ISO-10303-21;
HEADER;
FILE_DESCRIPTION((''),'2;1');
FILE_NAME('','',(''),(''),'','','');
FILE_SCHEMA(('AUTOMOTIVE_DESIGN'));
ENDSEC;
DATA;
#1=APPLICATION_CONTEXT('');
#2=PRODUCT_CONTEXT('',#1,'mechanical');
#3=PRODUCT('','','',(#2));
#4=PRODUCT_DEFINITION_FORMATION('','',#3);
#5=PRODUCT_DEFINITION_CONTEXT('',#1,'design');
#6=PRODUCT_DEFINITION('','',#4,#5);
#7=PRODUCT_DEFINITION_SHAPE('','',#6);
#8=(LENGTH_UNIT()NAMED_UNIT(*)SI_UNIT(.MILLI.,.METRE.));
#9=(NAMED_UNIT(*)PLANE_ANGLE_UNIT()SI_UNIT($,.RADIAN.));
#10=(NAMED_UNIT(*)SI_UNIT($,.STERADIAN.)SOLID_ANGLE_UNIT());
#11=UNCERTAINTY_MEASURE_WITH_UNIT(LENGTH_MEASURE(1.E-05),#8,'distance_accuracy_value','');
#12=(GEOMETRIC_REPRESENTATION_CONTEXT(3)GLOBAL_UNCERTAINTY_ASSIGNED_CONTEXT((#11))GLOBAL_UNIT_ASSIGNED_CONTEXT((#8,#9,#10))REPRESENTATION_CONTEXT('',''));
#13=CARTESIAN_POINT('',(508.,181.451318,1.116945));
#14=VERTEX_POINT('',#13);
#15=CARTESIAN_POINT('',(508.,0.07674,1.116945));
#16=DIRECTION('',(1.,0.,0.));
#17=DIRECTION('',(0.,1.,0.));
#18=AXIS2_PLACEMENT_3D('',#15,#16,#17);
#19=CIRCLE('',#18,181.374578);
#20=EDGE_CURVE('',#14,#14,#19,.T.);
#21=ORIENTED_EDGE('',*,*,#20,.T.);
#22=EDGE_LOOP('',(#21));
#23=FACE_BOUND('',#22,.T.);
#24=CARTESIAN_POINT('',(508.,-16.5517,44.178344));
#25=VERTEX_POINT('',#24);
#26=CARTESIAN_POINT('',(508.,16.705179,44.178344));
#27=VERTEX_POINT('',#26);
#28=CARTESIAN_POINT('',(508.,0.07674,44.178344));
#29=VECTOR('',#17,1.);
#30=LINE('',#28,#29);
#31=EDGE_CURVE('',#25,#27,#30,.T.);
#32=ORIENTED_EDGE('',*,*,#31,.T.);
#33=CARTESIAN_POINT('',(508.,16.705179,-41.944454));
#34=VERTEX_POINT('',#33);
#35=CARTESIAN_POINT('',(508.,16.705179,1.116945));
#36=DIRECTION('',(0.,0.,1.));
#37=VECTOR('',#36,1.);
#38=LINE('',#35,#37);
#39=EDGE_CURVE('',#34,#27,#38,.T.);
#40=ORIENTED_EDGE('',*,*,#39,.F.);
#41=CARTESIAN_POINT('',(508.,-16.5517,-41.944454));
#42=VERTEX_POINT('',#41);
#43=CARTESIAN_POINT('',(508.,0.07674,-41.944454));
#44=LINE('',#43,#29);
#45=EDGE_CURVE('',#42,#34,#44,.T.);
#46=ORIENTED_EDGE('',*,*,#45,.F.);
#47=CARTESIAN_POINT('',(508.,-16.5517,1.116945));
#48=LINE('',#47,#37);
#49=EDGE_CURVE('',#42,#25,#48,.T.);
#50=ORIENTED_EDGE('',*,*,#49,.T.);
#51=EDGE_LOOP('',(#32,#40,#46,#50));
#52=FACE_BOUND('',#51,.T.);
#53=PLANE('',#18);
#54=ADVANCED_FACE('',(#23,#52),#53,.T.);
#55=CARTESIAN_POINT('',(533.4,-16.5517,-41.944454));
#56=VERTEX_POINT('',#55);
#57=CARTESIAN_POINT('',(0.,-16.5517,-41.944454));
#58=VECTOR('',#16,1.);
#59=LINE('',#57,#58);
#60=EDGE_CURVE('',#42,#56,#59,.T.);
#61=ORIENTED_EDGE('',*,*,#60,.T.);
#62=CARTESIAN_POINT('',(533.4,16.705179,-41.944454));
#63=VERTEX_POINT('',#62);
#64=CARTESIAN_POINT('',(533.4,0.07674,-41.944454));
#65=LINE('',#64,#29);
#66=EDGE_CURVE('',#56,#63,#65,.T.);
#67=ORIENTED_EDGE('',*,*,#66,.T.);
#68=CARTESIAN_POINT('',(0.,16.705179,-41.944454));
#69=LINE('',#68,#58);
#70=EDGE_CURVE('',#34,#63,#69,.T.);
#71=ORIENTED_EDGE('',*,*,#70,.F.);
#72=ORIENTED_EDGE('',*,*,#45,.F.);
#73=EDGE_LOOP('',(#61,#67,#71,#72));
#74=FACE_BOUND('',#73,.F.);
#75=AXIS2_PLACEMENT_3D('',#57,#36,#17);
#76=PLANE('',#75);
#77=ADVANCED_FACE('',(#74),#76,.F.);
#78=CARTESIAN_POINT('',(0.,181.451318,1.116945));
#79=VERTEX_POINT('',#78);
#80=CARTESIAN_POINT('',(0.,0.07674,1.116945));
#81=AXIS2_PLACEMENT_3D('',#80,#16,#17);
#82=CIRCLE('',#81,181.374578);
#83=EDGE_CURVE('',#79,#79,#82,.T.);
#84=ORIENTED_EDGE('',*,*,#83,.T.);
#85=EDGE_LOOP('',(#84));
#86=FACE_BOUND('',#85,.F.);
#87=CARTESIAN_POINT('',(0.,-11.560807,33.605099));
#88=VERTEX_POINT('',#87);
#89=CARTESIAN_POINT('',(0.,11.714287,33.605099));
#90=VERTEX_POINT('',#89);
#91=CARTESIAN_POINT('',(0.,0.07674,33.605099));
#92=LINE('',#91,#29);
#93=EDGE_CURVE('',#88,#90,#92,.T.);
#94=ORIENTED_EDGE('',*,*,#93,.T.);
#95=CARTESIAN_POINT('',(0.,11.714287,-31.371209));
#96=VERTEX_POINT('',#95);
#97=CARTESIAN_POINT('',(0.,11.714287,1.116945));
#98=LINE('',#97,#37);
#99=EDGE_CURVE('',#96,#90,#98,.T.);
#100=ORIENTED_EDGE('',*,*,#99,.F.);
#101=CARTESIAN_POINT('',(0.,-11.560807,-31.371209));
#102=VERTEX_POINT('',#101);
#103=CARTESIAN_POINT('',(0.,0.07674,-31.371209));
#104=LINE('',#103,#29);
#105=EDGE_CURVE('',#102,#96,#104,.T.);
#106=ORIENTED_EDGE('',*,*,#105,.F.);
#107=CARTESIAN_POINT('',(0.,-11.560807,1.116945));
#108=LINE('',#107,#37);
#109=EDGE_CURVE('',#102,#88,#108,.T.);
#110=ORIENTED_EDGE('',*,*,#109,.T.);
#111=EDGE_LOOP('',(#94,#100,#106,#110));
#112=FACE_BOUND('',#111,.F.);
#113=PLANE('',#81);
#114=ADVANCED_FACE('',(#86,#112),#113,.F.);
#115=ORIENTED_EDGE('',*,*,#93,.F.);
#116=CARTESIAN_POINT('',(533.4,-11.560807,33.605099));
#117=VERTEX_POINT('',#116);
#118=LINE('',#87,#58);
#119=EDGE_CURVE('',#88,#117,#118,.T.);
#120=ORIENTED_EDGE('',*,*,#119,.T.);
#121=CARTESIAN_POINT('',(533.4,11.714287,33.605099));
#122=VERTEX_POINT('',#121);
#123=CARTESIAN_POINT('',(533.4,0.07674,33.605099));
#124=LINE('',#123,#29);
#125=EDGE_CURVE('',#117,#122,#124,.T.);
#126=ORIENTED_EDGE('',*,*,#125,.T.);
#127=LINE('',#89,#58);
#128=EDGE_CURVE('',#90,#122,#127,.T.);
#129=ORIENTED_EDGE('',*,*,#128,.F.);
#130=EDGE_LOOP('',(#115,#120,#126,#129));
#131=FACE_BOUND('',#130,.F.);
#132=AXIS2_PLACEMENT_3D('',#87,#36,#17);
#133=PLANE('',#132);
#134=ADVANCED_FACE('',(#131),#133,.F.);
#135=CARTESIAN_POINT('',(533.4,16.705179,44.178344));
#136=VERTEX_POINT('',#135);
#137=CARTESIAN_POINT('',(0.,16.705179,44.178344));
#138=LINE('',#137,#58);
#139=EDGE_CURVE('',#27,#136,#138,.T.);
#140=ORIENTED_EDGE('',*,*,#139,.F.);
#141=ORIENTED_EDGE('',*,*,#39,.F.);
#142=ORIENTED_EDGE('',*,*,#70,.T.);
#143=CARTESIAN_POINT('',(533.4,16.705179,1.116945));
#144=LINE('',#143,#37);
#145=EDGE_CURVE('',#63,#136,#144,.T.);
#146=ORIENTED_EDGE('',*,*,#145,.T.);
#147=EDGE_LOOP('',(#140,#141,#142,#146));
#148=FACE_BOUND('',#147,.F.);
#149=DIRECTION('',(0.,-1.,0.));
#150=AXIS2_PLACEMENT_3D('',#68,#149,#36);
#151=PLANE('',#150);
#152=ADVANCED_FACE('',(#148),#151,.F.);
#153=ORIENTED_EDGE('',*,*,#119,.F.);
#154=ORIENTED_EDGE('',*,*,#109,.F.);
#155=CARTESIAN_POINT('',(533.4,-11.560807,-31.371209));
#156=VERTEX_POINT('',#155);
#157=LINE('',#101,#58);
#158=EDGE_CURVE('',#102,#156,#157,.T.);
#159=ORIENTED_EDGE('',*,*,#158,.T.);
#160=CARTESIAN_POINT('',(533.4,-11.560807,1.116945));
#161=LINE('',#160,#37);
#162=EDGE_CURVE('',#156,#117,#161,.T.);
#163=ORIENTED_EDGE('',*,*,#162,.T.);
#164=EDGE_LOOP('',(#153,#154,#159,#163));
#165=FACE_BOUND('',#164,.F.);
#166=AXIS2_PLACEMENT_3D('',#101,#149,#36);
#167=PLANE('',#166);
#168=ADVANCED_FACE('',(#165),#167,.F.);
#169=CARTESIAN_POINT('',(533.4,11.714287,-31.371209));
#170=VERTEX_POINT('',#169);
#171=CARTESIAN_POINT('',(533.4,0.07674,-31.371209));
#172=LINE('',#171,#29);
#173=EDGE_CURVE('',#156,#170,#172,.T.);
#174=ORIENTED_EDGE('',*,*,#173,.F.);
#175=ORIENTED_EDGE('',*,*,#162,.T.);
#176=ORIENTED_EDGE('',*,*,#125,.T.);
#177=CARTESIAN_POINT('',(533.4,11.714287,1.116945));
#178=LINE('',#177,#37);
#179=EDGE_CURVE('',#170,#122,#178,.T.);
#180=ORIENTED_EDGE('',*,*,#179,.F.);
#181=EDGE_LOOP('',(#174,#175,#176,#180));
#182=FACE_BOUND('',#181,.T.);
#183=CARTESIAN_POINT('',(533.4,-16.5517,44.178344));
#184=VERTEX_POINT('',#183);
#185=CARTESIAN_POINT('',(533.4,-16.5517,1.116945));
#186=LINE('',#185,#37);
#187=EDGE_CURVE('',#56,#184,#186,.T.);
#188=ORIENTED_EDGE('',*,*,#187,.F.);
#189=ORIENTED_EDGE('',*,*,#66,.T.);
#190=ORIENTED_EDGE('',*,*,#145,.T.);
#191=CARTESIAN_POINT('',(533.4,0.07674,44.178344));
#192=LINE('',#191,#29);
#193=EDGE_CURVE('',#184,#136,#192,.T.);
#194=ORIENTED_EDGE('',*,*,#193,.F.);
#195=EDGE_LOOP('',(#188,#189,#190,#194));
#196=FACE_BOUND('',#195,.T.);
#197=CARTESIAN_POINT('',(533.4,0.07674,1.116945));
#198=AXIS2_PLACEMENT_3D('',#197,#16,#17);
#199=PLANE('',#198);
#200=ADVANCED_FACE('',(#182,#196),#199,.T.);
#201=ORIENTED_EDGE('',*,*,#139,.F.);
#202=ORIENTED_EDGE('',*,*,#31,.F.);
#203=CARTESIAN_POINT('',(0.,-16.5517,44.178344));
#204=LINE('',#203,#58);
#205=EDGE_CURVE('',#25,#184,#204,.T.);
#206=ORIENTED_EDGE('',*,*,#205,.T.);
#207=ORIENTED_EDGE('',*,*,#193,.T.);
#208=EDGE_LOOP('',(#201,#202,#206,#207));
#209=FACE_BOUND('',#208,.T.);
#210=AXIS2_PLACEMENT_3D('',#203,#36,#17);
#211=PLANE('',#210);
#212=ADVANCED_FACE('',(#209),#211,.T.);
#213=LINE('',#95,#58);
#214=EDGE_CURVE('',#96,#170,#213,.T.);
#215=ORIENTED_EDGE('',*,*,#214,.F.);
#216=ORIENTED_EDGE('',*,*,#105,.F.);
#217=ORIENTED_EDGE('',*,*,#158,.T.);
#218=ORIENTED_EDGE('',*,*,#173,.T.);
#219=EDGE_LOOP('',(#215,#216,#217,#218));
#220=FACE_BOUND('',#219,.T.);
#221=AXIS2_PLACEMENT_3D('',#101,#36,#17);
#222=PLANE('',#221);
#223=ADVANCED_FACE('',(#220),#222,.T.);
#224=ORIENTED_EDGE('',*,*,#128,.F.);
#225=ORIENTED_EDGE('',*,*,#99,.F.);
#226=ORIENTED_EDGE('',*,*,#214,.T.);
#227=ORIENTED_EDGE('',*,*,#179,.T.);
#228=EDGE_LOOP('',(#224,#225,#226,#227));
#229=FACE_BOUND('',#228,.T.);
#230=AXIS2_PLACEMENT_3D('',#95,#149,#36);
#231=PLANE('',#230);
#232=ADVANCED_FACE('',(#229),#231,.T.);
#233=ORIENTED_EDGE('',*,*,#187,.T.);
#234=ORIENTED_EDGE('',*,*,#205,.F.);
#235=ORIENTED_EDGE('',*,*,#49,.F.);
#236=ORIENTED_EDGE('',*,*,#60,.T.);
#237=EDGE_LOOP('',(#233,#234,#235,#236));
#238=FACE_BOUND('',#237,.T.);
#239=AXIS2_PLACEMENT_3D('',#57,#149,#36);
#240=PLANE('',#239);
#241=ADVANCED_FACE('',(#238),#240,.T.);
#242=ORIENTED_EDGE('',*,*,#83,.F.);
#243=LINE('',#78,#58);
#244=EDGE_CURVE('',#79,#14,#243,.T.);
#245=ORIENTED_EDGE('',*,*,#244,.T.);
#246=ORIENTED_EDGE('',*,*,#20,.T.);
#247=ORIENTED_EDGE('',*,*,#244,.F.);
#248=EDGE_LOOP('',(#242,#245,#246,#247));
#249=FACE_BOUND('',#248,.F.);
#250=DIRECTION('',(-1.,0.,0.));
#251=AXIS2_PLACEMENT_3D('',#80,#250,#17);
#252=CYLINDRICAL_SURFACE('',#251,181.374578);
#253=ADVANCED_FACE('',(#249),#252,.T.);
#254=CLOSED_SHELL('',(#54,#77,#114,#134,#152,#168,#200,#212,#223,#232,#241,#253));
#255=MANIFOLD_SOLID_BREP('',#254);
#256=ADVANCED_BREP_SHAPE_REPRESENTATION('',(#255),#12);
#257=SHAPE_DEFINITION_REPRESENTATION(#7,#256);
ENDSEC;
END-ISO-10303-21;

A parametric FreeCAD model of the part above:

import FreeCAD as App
import Part
import Sketcher
from FreeCAD import Vector
Q = App.Units.Quantity

doc = App.newDocument("Part")
body = doc.addObject("PartDesign::Body", "Body")

sketch1 = body.newObject("Sketcher::SketchObject", "Sketch")
sketch1.AttachmentSupport = (doc.getObject("YZ_Plane"), [""])
sketch1.MapMode = "FlatFace"
sketch1.addGeometry([
    Part.LineSegment(Vector(-17, 44, 0), Vector(-17, -42, 0)),
    Part.LineSegment(Vector(-17, -42, 0), Vector(17, -42, 0)),
    Part.LineSegment(Vector(17, -42, 0), Vector(17, 44, 0)),
    Part.LineSegment(Vector(17, 44, 0), Vector(-17, 44, 0)),
    Part.LineSegment(Vector(12, -31, 0), Vector(-12, -31, 0)),
    Part.LineSegment(Vector(-12, -31, 0), Vector(-12, 34, 0)),
    Part.LineSegment(Vector(-12, 34, 0), Vector(12, 34, 0)),
    Part.LineSegment(Vector(12, 34, 0), Vector(12, -31, 0)),
], False)
sketch1.addConstraint([
    Sketcher.Constraint("Coincident", 0, 2, 1, 1),
    Sketcher.Constraint("Coincident", 1, 2, 2, 1),
    Sketcher.Constraint("Coincident", 2, 2, 3, 1),
    Sketcher.Constraint("Coincident", 3, 2, 0, 1),
    Sketcher.Constraint("Coincident", 4, 2, 5, 1),
    Sketcher.Constraint("Coincident", 5, 2, 6, 1),
    Sketcher.Constraint("Coincident", 6, 2, 7, 1),
    Sketcher.Constraint("Coincident", 7, 2, 4, 1),
    Sketcher.Constraint("Vertical", 0),
    Sketcher.Constraint("Horizontal", 1),
    Sketcher.Constraint("Vertical", 2),
    Sketcher.Constraint("Horizontal", 3),
    Sketcher.Constraint("Horizontal", 4),
    Sketcher.Constraint("Vertical", 5),
    Sketcher.Constraint("Horizontal", 6),
    Sketcher.Constraint("Vertical", 7),
    Sketcher.Constraint("DistanceY", 0, 2, 0, 1, 86.122798),
    Sketcher.Constraint("DistanceX", 1, 1, 1, 2, 33.256879),
    Sketcher.Constraint("DistanceY", 5, 1, 5, 2, 64.976308),
    Sketcher.Constraint("DistanceX", 0, 2, -1, 1, 16.5517),
    Sketcher.Constraint("DistanceY", -1, 1, 5, 2, 33.605099),
    Sketcher.Constraint("DistanceX", 4, 2, 4, 1, 23.275094),
    Sketcher.Constraint("DistanceY", 0, 2, -1, 1, 41.944454),
    Sketcher.Constraint("DistanceX", 4, 2, -1, 1, 11.560807),
])
pad1 = body.newObject("PartDesign::Pad", "Pad")
pad1.Profile = sketch1
pad1.Length = Q("21 in")

sketch2 = body.newObject("Sketcher::SketchObject", "Sketch001")
sketch2.AttachmentSupport = (doc.getObject("YZ_Plane"), [""])
sketch2.MapMode = "FlatFace"
sketch2.addGeometry([
    Part.Circle(Vector(0, 1, 0), Vector(0, 0, 1), 181),
    Part.LineSegment(Vector(17, -42, 0), Vector(-17, -42, 0)),
    Part.LineSegment(Vector(-17, -42, 0), Vector(-17, 44, 0)),
    Part.LineSegment(Vector(-17, 44, 0), Vector(17, 44, 0)),
    Part.LineSegment(Vector(17, 44, 0), Vector(17, -42, 0)),
], False)
sketch2.addConstraint([
    Sketcher.Constraint("Coincident", 1, 2, 2, 1),
    Sketcher.Constraint("Coincident", 2, 2, 3, 1),
    Sketcher.Constraint("Coincident", 3, 2, 4, 1),
    Sketcher.Constraint("Coincident", 4, 2, 1, 1),
    Sketcher.Constraint("Horizontal", 1),
    Sketcher.Constraint("Vertical", 2),
    Sketcher.Constraint("Horizontal", 3),
    Sketcher.Constraint("Vertical", 4),
    Sketcher.Constraint("Diameter", 0, 362.749156),
    Sketcher.Constraint("DistanceY", 2, 1, 2, 2, 86.122798),
    Sketcher.Constraint("DistanceX", 1, 2, 1, 1, 33.256879),
    Sketcher.Constraint("DistanceX", 1, 2, -1, 1, 16.5517),
    Sketcher.Constraint("DistanceY", 1, 2, 0, 3, 43.061399),
    Sketcher.Constraint("DistanceX", -1, 1, 0, 3, 0.07674),
    Sketcher.Constraint("DistanceY", -1, 1, 0, 3, 1.116945),
])
pad2 = body.newObject("PartDesign::Pad", "Pad001")
pad2.Profile = sketch2
pad2.Length = Q("20 in")

doc.recompute()
